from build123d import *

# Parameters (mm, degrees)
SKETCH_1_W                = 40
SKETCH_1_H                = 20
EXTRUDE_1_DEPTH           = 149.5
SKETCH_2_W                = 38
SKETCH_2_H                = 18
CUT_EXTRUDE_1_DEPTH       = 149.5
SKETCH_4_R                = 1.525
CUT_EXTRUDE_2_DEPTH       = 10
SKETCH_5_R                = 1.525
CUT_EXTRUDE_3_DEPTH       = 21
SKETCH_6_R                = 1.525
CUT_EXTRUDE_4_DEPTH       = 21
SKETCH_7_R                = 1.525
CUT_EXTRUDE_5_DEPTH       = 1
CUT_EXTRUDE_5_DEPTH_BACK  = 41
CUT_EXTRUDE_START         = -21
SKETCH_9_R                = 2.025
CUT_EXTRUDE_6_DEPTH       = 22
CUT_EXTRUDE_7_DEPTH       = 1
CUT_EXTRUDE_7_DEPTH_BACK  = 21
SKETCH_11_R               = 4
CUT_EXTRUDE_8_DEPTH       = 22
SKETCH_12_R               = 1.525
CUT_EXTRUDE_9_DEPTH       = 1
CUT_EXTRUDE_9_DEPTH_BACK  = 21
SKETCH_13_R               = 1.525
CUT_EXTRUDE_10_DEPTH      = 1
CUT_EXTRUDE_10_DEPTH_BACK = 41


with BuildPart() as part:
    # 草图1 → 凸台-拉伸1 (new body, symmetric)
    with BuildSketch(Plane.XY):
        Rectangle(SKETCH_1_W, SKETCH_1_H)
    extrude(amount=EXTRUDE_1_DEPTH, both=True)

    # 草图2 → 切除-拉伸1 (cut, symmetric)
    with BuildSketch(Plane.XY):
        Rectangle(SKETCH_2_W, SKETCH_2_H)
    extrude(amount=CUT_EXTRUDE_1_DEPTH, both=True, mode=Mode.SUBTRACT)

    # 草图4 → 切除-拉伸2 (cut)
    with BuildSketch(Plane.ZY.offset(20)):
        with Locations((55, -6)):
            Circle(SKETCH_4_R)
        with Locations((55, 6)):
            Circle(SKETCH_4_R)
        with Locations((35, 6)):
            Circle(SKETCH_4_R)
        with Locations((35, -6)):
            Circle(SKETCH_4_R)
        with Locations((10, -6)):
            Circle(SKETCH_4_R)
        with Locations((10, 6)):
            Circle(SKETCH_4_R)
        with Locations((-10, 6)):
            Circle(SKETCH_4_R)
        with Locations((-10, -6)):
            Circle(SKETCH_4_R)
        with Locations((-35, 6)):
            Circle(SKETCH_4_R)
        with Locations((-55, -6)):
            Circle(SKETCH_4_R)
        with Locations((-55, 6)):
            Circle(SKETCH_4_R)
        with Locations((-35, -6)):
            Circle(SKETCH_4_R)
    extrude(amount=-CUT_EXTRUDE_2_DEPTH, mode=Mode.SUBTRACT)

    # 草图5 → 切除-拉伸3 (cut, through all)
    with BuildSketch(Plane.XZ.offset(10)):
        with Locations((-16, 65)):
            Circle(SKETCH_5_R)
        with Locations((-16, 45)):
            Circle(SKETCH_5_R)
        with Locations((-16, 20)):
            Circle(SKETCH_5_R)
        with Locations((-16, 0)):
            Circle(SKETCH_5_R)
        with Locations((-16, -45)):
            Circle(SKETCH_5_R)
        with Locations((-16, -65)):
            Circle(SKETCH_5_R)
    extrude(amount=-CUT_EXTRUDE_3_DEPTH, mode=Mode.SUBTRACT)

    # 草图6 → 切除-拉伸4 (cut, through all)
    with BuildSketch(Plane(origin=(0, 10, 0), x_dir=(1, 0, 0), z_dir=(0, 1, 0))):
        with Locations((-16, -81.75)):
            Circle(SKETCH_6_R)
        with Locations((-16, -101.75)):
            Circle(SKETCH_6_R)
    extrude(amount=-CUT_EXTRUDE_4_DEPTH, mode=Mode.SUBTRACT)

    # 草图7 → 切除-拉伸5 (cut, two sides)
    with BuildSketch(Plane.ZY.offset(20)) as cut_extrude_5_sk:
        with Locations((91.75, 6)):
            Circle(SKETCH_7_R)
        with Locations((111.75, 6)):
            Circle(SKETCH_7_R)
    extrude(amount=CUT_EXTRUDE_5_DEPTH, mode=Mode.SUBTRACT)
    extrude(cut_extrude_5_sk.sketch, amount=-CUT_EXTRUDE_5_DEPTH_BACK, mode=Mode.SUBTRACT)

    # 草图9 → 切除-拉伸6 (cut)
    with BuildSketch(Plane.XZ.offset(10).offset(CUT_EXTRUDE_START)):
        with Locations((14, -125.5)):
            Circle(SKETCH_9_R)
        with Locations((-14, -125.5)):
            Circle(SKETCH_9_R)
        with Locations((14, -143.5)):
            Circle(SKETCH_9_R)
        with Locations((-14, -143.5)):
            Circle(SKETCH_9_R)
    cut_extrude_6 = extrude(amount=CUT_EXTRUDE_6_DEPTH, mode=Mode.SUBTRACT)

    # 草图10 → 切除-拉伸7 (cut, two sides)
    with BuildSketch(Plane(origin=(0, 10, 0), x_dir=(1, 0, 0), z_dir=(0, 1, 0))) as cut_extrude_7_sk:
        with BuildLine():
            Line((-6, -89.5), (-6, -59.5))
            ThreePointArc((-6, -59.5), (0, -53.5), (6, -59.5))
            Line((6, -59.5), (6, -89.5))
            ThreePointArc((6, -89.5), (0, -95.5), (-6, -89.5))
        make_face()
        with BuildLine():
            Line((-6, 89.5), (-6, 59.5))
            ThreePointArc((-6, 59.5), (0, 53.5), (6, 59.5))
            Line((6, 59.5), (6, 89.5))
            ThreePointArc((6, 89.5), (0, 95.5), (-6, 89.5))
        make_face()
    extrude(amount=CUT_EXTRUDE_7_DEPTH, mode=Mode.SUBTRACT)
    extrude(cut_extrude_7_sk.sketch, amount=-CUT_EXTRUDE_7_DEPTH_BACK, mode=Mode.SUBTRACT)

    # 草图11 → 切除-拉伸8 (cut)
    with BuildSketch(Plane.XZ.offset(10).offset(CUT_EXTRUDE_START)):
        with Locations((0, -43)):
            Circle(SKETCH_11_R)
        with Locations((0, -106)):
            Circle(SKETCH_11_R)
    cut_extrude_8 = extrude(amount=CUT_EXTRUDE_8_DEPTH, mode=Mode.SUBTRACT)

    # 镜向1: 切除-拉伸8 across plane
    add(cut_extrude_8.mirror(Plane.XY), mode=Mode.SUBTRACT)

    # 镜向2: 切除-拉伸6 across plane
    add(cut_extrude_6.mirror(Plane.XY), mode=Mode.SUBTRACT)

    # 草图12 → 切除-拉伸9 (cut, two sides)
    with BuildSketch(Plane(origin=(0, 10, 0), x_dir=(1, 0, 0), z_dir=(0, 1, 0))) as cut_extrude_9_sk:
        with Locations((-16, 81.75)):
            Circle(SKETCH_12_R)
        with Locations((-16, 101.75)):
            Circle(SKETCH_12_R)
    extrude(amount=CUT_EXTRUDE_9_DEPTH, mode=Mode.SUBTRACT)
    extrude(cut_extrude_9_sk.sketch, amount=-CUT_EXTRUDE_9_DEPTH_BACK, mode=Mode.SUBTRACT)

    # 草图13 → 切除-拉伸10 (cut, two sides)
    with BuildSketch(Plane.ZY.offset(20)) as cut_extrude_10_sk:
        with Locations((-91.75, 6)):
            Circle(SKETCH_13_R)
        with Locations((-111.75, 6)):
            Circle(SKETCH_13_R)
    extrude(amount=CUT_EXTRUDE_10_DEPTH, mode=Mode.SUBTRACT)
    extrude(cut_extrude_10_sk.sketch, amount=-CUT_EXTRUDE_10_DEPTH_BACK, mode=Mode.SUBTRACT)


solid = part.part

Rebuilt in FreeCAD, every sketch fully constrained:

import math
import FreeCAD as App
import Part
import Sketcher
from FreeCAD import Vector
Q = App.Units.Quantity

doc = App.newDocument("Part")
body = doc.addObject("PartDesign::Body", "Body")

sketch1 = body.newObject("Sketcher::SketchObject", "Sketch")
sketch1.AttachmentSupport = (doc.getObject("XY_Plane"), [""])
sketch1.MapMode = "FlatFace"
sketch1.addGeometry(Part.LineSegment(Vector(-20, 10, 0), Vector(-20, -10, 0)), False)
sketch1.addGeometry(Part.LineSegment(Vector(-20, -10, 0), Vector(20, -10, 0)), False)
sketch1.addGeometry(Part.LineSegment(Vector(20, -10, 0), Vector(20, 10, 0)), False)
sketch1.addGeometry(Part.LineSegment(Vector(20, 10, 0), Vector(-20, 10, 0)), False)
sketch1.addConstraint(Sketcher.Constraint("Coincident", 0, 2, 1, 1))
sketch1.addConstraint(Sketcher.Constraint("Coincident", 1, 2, 2, 1))
sketch1.addConstraint(Sketcher.Constraint("Coincident", 2, 2, 3, 1))
sketch1.addConstraint(Sketcher.Constraint("Coincident", 3, 2, 0, 1))
sketch1.addConstraint(Sketcher.Constraint("Vertical", 0))
sketch1.addConstraint(Sketcher.Constraint("Horizontal", 1))
sketch1.addConstraint(Sketcher.Constraint("Vertical", 2))
sketch1.addConstraint(Sketcher.Constraint("Horizontal", 3))
sketch1.addConstraint(Sketcher.Constraint("Symmetric", 0, 2, 2, 2, -1, 1))
sketch1.addConstraint(Sketcher.Constraint("DistanceX", 1, 1, 1, 2, Q("40 mm")))
sketch1.addConstraint(Sketcher.Constraint("DistanceY", 0, 2, 0, 1, Q("20 mm")))
pad1 = body.newObject("PartDesign::Pad", "Pad")
pad1.Profile = sketch1
pad1.Length = 299
pad1.Midplane = True

sketch2 = body.newObject("Sketcher::SketchObject", "Sketch001")
sketch2.AttachmentSupport = (doc.getObject("XY_Plane"), [""])
sketch2.MapMode = "FlatFace"
sketch2.addGeometry(Part.LineSegment(Vector(-19, 9, 0), Vector(-19, -9, 0)), False)
sketch2.addGeometry(Part.LineSegment(Vector(-19, -9, 0), Vector(19, -9, 0)), False)
sketch2.addGeometry(Part.LineSegment(Vector(19, -9, 0), Vector(19, 9, 0)), False)
sketch2.addGeometry(Part.LineSegment(Vector(19, 9, 0), Vector(-19, 9, 0)), False)
sketch2.addConstraint(Sketcher.Constraint("Coincident", 0, 2, 1, 1))
sketch2.addConstraint(Sketcher.Constraint("Coincident", 1, 2, 2, 1))
sketch2.addConstraint(Sketcher.Constraint("Coincident", 2, 2, 3, 1))
sketch2.addConstraint(Sketcher.Constraint("Coincident", 3, 2, 0, 1))
sketch2.addConstraint(Sketcher.Constraint("Vertical", 0))
sketch2.addConstraint(Sketcher.Constraint("Horizontal", 1))
sketch2.addConstraint(Sketcher.Constraint("Vertical", 2))
sketch2.addConstraint(Sketcher.Constraint("Horizontal", 3))
sketch2.addConstraint(Sketcher.Constraint("Symmetric", 0, 2, 2, 2, -1, 1))
sketch2.addConstraint(Sketcher.Constraint("DistanceX", 1, 1, 1, 2, Q("38 mm")))
sketch2.addConstraint(Sketcher.Constraint("DistanceY", 0, 2, 0, 1, Q("18 mm")))
pocket1 = body.newObject("PartDesign::Pocket", "Pocket")
pocket1.Profile = sketch2
pocket1.Length = 299
pocket1.Midplane = True

sketch3 = body.newObject("Sketcher::SketchObject", "Sketch002")
sketch3.AttachmentSupport = (doc.getObject("YZ_Plane"), [""])
sketch3.MapMode = "FlatFace"
sketch3.AttachmentOffset = App.Placement(Vector(0, 0, -20), App.Rotation())
sketch3.addGeometry(Part.Circle(Vector(-6, 55, 0), Vector(0, 0, 1), 1.5), False)
sketch3.addGeometry(Part.Circle(Vector(6, 55, 0), Vector(0, 0, 1), 1.5), False)
sketch3.addGeometry(Part.Circle(Vector(6, 35, 0), Vector(0, 0, 1), 1.5), False)
sketch3.addGeometry(Part.Circle(Vector(-6, 35, 0), Vector(0, 0, 1), 1.5), False)
sketch3.addGeometry(Part.Circle(Vector(-6, 10, 0), Vector(0, 0, 1), 1.5), False)
sketch3.addGeometry(Part.Circle(Vector(6, 10, 0), Vector(0, 0, 1), 1.5), False)
sketch3.addGeometry(Part.Circle(Vector(6, -10, 0), Vector(0, 0, 1), 1.5), False)
sketch3.addGeometry(Part.Circle(Vector(-6, -10, 0), Vector(0, 0, 1), 1.5), False)
sketch3.addGeometry(Part.Circle(Vector(6, -35, 0), Vector(0, 0, 1), 1.5), False)
sketch3.addGeometry(Part.Circle(Vector(-6, -55, 0), Vector(0, 0, 1), 1.5), False)
sketch3.addGeometry(Part.Circle(Vector(6, -55, 0), Vector(0, 0, 1), 1.5), False)
sketch3.addGeometry(Part.Circle(Vector(-6, -35, 0), Vector(0, 0, 1), 1.5), False)
sketch3.addConstraint(Sketcher.Constraint("Equal", 0, 1))
sketch3.addConstraint(Sketcher.Constraint("Equal", 1, 2))
sketch3.addConstraint(Sketcher.Constraint("Equal", 2, 3))
sketch3.addConstraint(Sketcher.Constraint("Equal", 3, 4))
sketch3.addConstraint(Sketcher.Constraint("Equal", 4, 5))
sketch3.addConstraint(Sketcher.Constraint("Equal", 5, 6))
sketch3.addConstraint(Sketcher.Constraint("Equal", 6, 7))
sketch3.addConstraint(Sketcher.Constraint("Equal", 7, 8))
sketch3.addConstraint(Sketcher.Constraint("Equal", 8, 9))
sketch3.addConstraint(Sketcher.Constraint("Equal", 9, 10))
sketch3.addConstraint(Sketcher.Constraint("Equal", 10, 11))
sketch3.addConstraint(Sketcher.Constraint("Symmetric", 4, 3, 6, 3, -1, 1))
sketch3.addConstraint(Sketcher.Constraint("Symmetric", 5, 3, 7, 3, -1, 1))
sketch3.addConstraint(Sketcher.Constraint("Symmetric", 3, 3, 8, 3, -1, 1))
sketch3.addConstraint(Sketcher.Constraint("Symmetric", 1, 3, 9, 3, -1, 1))
sketch3.addConstraint(Sketcher.Constraint("Symmetric", 0, 3, 10, 3, -1, 1))
sketch3.addConstraint(Sketcher.Constraint("Symmetric", 2, 3, 11, 3, -1, 1))
sketch3.addConstraint(Sketcher.Constraint("Symmetric", 0, 3, 1, 3, -2))
sketch3.addConstraint(Sketcher.Constraint("Symmetric", 2, 3, 3, 3, -2))
sketch3.addConstraint(Sketcher.Constraint("Symmetric", 4, 3, 5, 3, -2))
sketch3.addConstraint(Sketcher.Constraint("Vertical", 1, 3, 2, 3))
sketch3.addConstraint(Sketcher.Constraint("Vertical", 3, 3, 4, 3))
sketch3.addConstraint(Sketcher.Constraint("Diameter", 0, Q("3.05 mm")))
sketch3.addConstraint(Sketcher.Constraint("DistanceX", 0, 3, -1, 1, Q("6 mm")))
sketch3.addConstraint(Sketcher.Constraint("DistanceY", -1, 1, 0, 3, Q("55 mm")))
sketch3.addConstraint(Sketcher.Constraint("DistanceY", -1, 1, 2, 3, Q("35 mm")))
sketch3.addConstraint(Sketcher.Constraint("DistanceY", -1, 1, 4, 3, Q("10 mm")))
pocket2 = body.newObject("PartDesign::Pocket", "Pocket001")
pocket2.Profile = sketch3
pocket2.Length = 10
pocket2.Reversed = True

sketch4 = body.newObject("Sketcher::SketchObject", "Sketch003")
sketch4.AttachmentSupport = (doc.getObject("XZ_Plane"), [""])
sketch4.MapMode = "FlatFace"
sketch4.AttachmentOffset = App.Placement(Vector(0, 0, 10), App.Rotation())
sketch4.addGeometry(Part.Circle(Vector(-16, 65, 0), Vector(0, 0, 1), 1.5), False)
sketch4.addGeometry(Part.Circle(Vector(-16, 45, 0), Vector(0, 0, 1), 1.5), False)
sketch4.addGeometry(Part.Circle(Vector(-16, 20, 0), Vector(0, 0, 1), 1.5), False)
sketch4.addGeometry(Part.Circle(Vector(-16, 0, 0), Vector(0, 0, 1), 1.5), False)
sketch4.addGeometry(Part.Circle(Vector(-16, -45, 0), Vector(0, 0, 1), 1.5), False)
sketch4.addGeometry(Part.Circle(Vector(-16, -65, 0), Vector(0, 0, 1), 1.5), False)
sketch4.addConstraint(Sketcher.Constraint("Equal", 0, 1))
sketch4.addConstraint(Sketcher.Constraint("Equal", 1, 2))
sketch4.addConstraint(Sketcher.Constraint("Equal", 2, 3))
sketch4.addConstraint(Sketcher.Constraint("Equal", 3, 4))
sketch4.addConstraint(Sketcher.Constraint("Equal", 4, 5))
sketch4.addConstraint(Sketcher.Constraint("Symmetric", 1, 3, 4, 3, -1))
sketch4.addConstraint(Sketcher.Constraint("Symmetric", 0, 3, 5, 3, -1))
sketch4.addConstraint(Sketcher.Constraint("PointOnObject", 3, 3, -1))
sketch4.addConstraint(Sketcher.Constraint("Vertical", 0, 3, 1, 3))
sketch4.addConstraint(Sketcher.Constraint("Vertical", 1, 3, 2, 3))
sketch4.addConstraint(Sketcher.Constraint("Vertical", 2, 3, 3, 3))
sketch4.addConstraint(Sketcher.Constraint("Diameter", 0, Q("3.05 mm")))
sketch4.addConstraint(Sketcher.Constraint("DistanceX", 0, 3, -1, 1, Q("16 mm")))
sketch4.addConstraint(Sketcher.Constraint("DistanceY", -1, 1, 0, 3, Q("65 mm")))
sketch4.addConstraint(Sketcher.Constraint("DistanceY", -1, 1, 1, 3, Q("45 mm")))
sketch4.addConstraint(Sketcher.Constraint("DistanceY", -1, 1, 2, 3, Q("20 mm")))
pocket3 = body.newObject("PartDesign::Pocket", "Pocket002")
pocket3.Profile = sketch4
pocket3.Type = "ThroughAll"

sketch5 = body.newObject("Sketcher::SketchObject", "Sketch004")
sketch5.AttachmentSupport = (doc.getObject("XZ_Plane"), [""])
sketch5.MapMode = "FlatFace"
sketch5.AttachmentOffset = App.Placement(Vector(0, 0, -10), App.Rotation())
sketch5.addGeometry(Part.Circle(Vector(-16, 81.8, 0), Vector(0, 0, 1), 1.5), False)
sketch5.addGeometry(Part.Circle(Vector(-16, 101.8, 0), Vector(0, 0, 1), 1.5), False)
sketch5.addConstraint(Sketcher.Constraint("Equal", 0, 1))
sketch5.addConstraint(Sketcher.Constraint("Vertical", 0, 3, 1, 3))
sketch5.addConstraint(Sketcher.Constraint("Diameter", 0, Q("3.05 mm")))
sketch5.addConstraint(Sketcher.Constraint("DistanceX", 0, 3, -1, 1, Q("16 mm")))
sketch5.addConstraint(Sketcher.Constraint("DistanceY", 0, 3, 1, 3, Q("20 mm")))
sketch5.addConstraint(Sketcher.Constraint("DistanceY", -1, 1, 0, 3, Q("81.75 mm")))
pocket4 = body.newObject("PartDesign::Pocket", "Pocket003")
pocket4.Profile = sketch5
pocket4.Type = "ThroughAll"
pocket4.Reversed = True

sketch6 = body.newObject("Sketcher::SketchObject", "Sketch005")
sketch6.AttachmentSupport = (doc.getObject("YZ_Plane"), [""])
sketch6.MapMode = "FlatFace"
sketch6.AttachmentOffset = App.Placement(Vector(0, 0, -20), App.Rotation())
sketch6.addGeometry(Part.Circle(Vector(6, 91.8, 0), Vector(0, 0, 1), 1.5), False)
sketch6.addGeometry(Part.Circle(Vector(6, 111.8, 0), Vector(0, 0, 1), 1.5), False)
sketch6.addConstraint(Sketcher.Constraint("Equal", 0, 1))
sketch6.addConstraint(Sketcher.Constraint("Vertical", 0, 3, 1, 3))
sketch6.addConstraint(Sketcher.Constraint("Diameter", 0, Q("3.05 mm")))
sketch6.addConstraint(Sketcher.Constraint("DistanceX", -1, 1, 0, 3, Q("6 mm")))
sketch6.addConstraint(Sketcher.Constraint("DistanceY", 0, 3, 1, 3, Q("20 mm")))
sketch6.addConstraint(Sketcher.Constraint("DistanceY", -1, 1, 0, 3, Q("91.75 mm")))
pocket5 = body.newObject("PartDesign::Pocket", "Pocket004")
pocket5.Profile = sketch6
pocket5.Type = "ThroughAll"
pocket5.Midplane = True

sketch7 = body.newObject("Sketcher::SketchObject", "Sketch006")
sketch7.AttachmentSupport = (doc.getObject("XZ_Plane"), [""])
sketch7.MapMode = "FlatFace"
sketch7.AttachmentOffset = App.Placement(Vector(0, 0, -11), App.Rotation())
sketch7.addGeometry(Part.Circle(Vector(14, -125.5, 0), Vector(0, 0, 1), 2), False)
sketch7.addGeometry(Part.Circle(Vector(-14, -125.5, 0), Vector(0, 0, 1), 2), False)
sketch7.addGeometry(Part.Circle(Vector(14, -143.5, 0), Vector(0, 0, 1), 2), False)
sketch7.addGeometry(Part.Circle(Vector(-14, -143.5, 0), Vector(0, 0, 1), 2), False)
sketch7.addConstraint(Sketcher.Constraint("Equal", 0, 1))
sketch7.addConstraint(Sketcher.Constraint("Equal", 1, 2))
sketch7.addConstraint(Sketcher.Constraint("Equal", 2, 3))
sketch7.addConstraint(Sketcher.Constraint("Symmetric", 0, 3, 1, 3, -2))
sketch7.addConstraint(Sketcher.Constraint("Symmetric", 2, 3, 3, 3, -2))
sketch7.addConstraint(Sketcher.Constraint("Vertical", 0, 3, 2, 3))
sketch7.addConstraint(Sketcher.Constraint("Diameter", 0, Q("4.05 mm")))
sketch7.addConstraint(Sketcher.Constraint("DistanceX", -1, 1, 0, 3, Q("14 mm")))
sketch7.addConstraint(Sketcher.Constraint("DistanceY", 2, 3, 0, 3, Q("18 mm")))
sketch7.addConstraint(Sketcher.Constraint("DistanceY", 0, 3, -1, 1, Q("125.5 mm")))
pocket6 = body.newObject("PartDesign::Pocket", "Pocket005")
pocket6.Profile = sketch7
pocket6.Length = 22
pocket6.Reversed = True

sketch8 = body.newObject("Sketcher::SketchObject", "Sketch007")
sketch8.AttachmentSupport = (doc.getObject("XZ_Plane"), [""])
sketch8.MapMode = "FlatFace"
sketch8.AttachmentOffset = App.Placement(Vector(0, 0, -10), App.Rotation())
sketch8.addGeometry(Part.LineSegment(Vector(-6, 60, 0), Vector(-6, 90, 0)), False)
sketch8.addGeometry(Part.ArcOfCircle(Part.Circle(Vector(0, 90, 0), Vector(0, 0, 1), 6), math.radians(0), math.radians(180)), False)
sketch8.addGeometry(Part.LineSegment(Vector(6, 90, 0), Vector(6, 60, 0)), False)
sketch8.addGeometry(Part.ArcOfCircle(Part.Circle(Vector(0, 60, 0), Vector(0, 0, 1), 6), math.radians(180), math.radians(360)), False)
sketch8.addGeometry(Part.LineSegment(Vector(-6, -90, 0), Vector(-6, -60, 0)), False)
sketch8.addGeometry(Part.ArcOfCircle(Part.Circle(Vector(0, -60, 0), Vector(0, 0, 1), 6), math.radians(0), math.radians(180)), False)
sketch8.addGeometry(Part.LineSegment(Vector(6, -60, 0), Vector(6, -90, 0)), False)
sketch8.addGeometry(Part.ArcOfCircle(Part.Circle(Vector(0, -90, 0), Vector(0, 0, 1), 6), math.radians(180), math.radians(360)), False)
sketch8.addConstraint(Sketcher.Constraint("Tangent", 0, 2, 1, 2))
sketch8.addConstraint(Sketcher.Constraint("Tangent", 1, 1, 2, 1))
sketch8.addConstraint(Sketcher.Constraint("Tangent", 2, 2, 3, 2))
sketch8.addConstraint(Sketcher.Constraint("Tangent", 3, 1, 0, 1))
sketch8.addConstraint(Sketcher.Constraint("Tangent", 4, 2, 5, 2))
sketch8.addConstraint(Sketcher.Constraint("Tangent", 5, 1, 6, 1))
sketch8.addConstraint(Sketcher.Constraint("Tangent", 6, 2, 7, 2))
sketch8.addConstraint(Sketcher.Constraint("Tangent", 7, 1, 4, 1))
sketch8.addConstraint(Sketcher.Constraint("Vertical", 0))
sketch8.addConstraint(Sketcher.Constraint("Vertical", 2))
sketch8.addConstraint(Sketcher.Constraint("Vertical", 4))
sketch8.addConstraint(Sketcher.Constraint("Vertical", 6))
sketch8.addConstraint(Sketcher.Constraint("Equal", 3, 5))
sketch8.addConstraint(Sketcher.Constraint("Symmetric", 3, 3, 5, 3, -1, 1))
sketch8.addConstraint(Sketcher.Constraint("Symmetric", 1, 3, 7, 3, -1))
sketch8.addConstraint(Sketcher.Constraint("Radius", 1, Q("6 mm")))
sketch8.addConstraint(Sketcher.Constraint("DistanceY", 0, 1, 0, 2, Q("30 mm")))
sketch8.addConstraint(Sketcher.Constraint("DistanceY", 5, 3, 3, 3, Q("119 mm")))
pocket7 = body.newObject("PartDesign::Pocket", "Pocket006")
pocket7.Profile = sketch8
pocket7.Type = "ThroughAll"
pocket7.Midplane = True

sketch9 = body.newObject("Sketcher::SketchObject", "Sketch008")
sketch9.AttachmentSupport = (doc.getObject("XZ_Plane"), [""])
sketch9.MapMode = "FlatFace"
sketch9.AttachmentOffset = App.Placement(Vector(0, 0, -11), App.Rotation())
sketch9.addGeometry(Part.Circle(Vector(0, -43, 0), Vector(0, 0, 1), 4), False)
sketch9.addGeometry(Part.Circle(Vector(0, -106, 0), Vector(0, 0, 1), 4), False)
sketch9.addConstraint(Sketcher.Constraint("Equal", 0, 1))
sketch9.addConstraint(Sketcher.Constraint("PointOnObject", 0, 3, -2))
sketch9.addConstraint(Sketcher.Constraint("PointOnObject", 1, 3, -2))
sketch9.addConstraint(Sketcher.Constraint("Diameter", 0, Q("8 mm")))
sketch9.addConstraint(Sketcher.Constraint("DistanceY", 0, 3, -1, 1, Q("43 mm")))
sketch9.addConstraint(Sketcher.Constraint("DistanceY", 1, 3, -1, 1, Q("106 mm")))
pocket8 = body.newObject("PartDesign::Pocket", "Pocket007")
pocket8.Profile = sketch9
pocket8.Length = 22
pocket8.Reversed = True
doc.recompute()

mirrored = body.newObject("PartDesign::Mirrored", "Mirrored")
mirrored.Originals = [pocket8]
mirrored.MirrorPlane = (doc.getObject("XY_Plane"), [""])
body.Tip = mirrored
doc.recompute()

mirrored2 = body.newObject("PartDesign::Mirrored", "Mirrored001")
mirrored2.Originals = [pocket6]
mirrored2.MirrorPlane = (doc.getObject("XY_Plane"), [""])
body.Tip = mirrored2

sketch10 = body.newObject("Sketcher::SketchObject", "Sketch009")
sketch10.AttachmentSupport = (doc.getObject("XZ_Plane"), [""])
sketch10.MapMode = "FlatFace"
sketch10.AttachmentOffset = App.Placement(Vector(0, 0, -10), App.Rotation())
sketch10.addGeometry(Part.Circle(Vector(-16, -81.8, 0), Vector(0, 0, 1), 1.5), False)
sketch10.addGeometry(Part.Circle(Vector(-16, -101.8, 0), Vector(0, 0, 1), 1.5), False)
sketch10.addConstraint(Sketcher.Constraint("Equal", 0, 1))
sketch10.addConstraint(Sketcher.Constraint("Vertical", 0, 3, 1, 3))
sketch10.addConstraint(Sketcher.Constraint("Diameter", 0, Q("3.05 mm")))
sketch10.addConstraint(Sketcher.Constraint("DistanceX", 0, 3, -1, 1, Q("16 mm")))
sketch10.addConstraint(Sketcher.Constraint("DistanceY", 1, 3, 0, 3, Q("20 mm")))
sketch10.addConstraint(Sketcher.Constraint("DistanceY", 0, 3, -1, 1, Q("81.75 mm")))
pocket9 = body.newObject("PartDesign::Pocket", "Pocket008")
pocket9.Profile = sketch10
pocket9.Type = "ThroughAll"
pocket9.Midplane = True

sketch11 = body.newObject("Sketcher::SketchObject", "Sketch010")
sketch11.AttachmentSupport = (doc.getObject("YZ_Plane"), [""])
sketch11.MapMode = "FlatFace"
sketch11.AttachmentOffset = App.Placement(Vector(0, 0, -20), App.Rotation())
sketch11.addGeometry(Part.Circle(Vector(6, -91.8, 0), Vector(0, 0, 1), 1.5), False)
sketch11.addGeometry(Part.Circle(Vector(6, -111.8, 0), Vector(0, 0, 1), 1.5), False)
sketch11.addConstraint(Sketcher.Constraint("Equal", 0, 1))
sketch11.addConstraint(Sketcher.Constraint("Vertical", 0, 3, 1, 3))
sketch11.addConstraint(Sketcher.Constraint("Diameter", 0, Q("3.05 mm")))
sketch11.addConstraint(Sketcher.Constraint("DistanceX", -1, 1, 0, 3, Q("6 mm")))
sketch11.addConstraint(Sketcher.Constraint("DistanceY", 1, 3, 0, 3, Q("20 mm")))
sketch11.addConstraint(Sketcher.Constraint("DistanceY", 0, 3, -1, 1, Q("91.75 mm")))
pocket10 = body.newObject("PartDesign::Pocket", "Pocket009")
pocket10.Profile = sketch11
pocket10.Type = "ThroughAll"
pocket10.Midplane = True

doc.recompute()
